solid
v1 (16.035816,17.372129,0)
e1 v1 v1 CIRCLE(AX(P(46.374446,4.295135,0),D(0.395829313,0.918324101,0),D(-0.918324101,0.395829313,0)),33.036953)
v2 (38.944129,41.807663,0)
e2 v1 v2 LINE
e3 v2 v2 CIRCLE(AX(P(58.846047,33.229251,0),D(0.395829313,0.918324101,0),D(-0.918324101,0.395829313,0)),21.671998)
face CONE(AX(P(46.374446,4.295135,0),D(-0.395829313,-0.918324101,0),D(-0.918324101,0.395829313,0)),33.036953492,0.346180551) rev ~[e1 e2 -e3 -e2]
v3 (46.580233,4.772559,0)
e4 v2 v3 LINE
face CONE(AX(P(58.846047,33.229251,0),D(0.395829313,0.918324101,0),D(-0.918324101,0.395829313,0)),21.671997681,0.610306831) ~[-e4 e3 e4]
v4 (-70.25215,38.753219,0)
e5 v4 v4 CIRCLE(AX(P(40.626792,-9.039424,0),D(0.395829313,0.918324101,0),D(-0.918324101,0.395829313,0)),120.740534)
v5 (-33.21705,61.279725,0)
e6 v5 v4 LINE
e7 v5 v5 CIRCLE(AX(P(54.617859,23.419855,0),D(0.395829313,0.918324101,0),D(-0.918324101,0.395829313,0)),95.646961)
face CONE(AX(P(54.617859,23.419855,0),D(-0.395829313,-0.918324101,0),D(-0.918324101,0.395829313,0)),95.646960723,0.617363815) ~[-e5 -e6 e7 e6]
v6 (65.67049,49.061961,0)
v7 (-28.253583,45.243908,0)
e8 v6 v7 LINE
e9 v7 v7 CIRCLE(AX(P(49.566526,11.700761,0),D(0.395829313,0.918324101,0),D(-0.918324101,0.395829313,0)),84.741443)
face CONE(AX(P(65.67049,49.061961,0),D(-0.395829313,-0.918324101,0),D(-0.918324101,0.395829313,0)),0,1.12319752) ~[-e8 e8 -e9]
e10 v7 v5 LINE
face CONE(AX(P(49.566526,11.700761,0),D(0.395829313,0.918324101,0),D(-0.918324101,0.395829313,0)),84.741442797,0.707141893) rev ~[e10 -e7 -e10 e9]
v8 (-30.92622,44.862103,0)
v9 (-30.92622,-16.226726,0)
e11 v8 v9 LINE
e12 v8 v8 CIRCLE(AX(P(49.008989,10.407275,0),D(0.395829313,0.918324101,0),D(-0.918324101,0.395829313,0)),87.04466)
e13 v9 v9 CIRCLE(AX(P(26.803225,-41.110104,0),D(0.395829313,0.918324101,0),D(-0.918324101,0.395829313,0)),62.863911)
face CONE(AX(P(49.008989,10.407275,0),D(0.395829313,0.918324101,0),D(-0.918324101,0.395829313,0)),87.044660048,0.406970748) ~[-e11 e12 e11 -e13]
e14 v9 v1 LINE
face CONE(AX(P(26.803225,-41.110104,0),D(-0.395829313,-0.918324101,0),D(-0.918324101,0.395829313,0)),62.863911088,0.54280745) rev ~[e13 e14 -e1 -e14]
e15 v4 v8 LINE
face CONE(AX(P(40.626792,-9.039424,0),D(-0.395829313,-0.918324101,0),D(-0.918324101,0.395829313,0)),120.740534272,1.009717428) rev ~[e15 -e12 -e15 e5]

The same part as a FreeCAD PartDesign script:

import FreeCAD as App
import Part
import Sketcher

V = App.Vector
Q = App.Units.Quantity

doc = App.newDocument("Part")
body = doc.addObject("PartDesign::Body", "Body")

# Sketch on XY plane
sketch1 = body.newObject("Sketcher::SketchObject", "Sketch")
sketch1.AttachmentSupport = (doc.getObject("XY_Plane"), [""])
sketch1.MapMode = "FlatFace"
sketch1.addGeometry(Part.LineSegment(V(-70.25215, 38.753219, 0), V(-30.92622, 44.862103, 0)), False)
sketch1.addGeometry(Part.LineSegment(V(-30.92622, 44.862103, 0), V(-30.92622, -16.226726, 0)), False)
sketch1.addGeometry(Part.LineSegment(V(-30.92622, -16.226726, 0), V(16.035816, 17.372129, 0)), False)
sketch1.addGeometry(Part.LineSegment(V(16.035816, 17.372129, 0), V(38.944129, 41.807663, 0)), False)
sketch1.addGeometry(Part.LineSegment(V(38.944129, 41.807663, 0), V(46.580233, 4.772559, 0)), False)
sketch1.addGeometry(Part.LineSegment(V(46.580233, 4.772559, 0), V(65.67049, 49.061961, 0)), False)
sketch1.addGeometry(Part.LineSegment(V(65.67049, 49.061961, 0), V(-28.253583, 45.243908, 0)), False)
sketch1.addGeometry(Part.LineSegment(V(-28.253583, 45.243908, 0), V(-33.21705, 61.279725, 0)), False)
sketch1.addGeometry(Part.LineSegment(V(-33.21705, 61.279725, 0), V(-70.25215, 38.753219, 0)), False)
sketch1.addGeometry(Part.LineSegment(V(26.803225, -41.110104, 0), V(65.67049, 49.061961, 0)), True)  # axis
sketch1.addConstraint(Sketcher.Constraint("Coincident", 0, 2, 1, 1))
sketch1.addConstraint(Sketcher.Constraint("Coincident", 1, 2, 2, 1))
sketch1.addConstraint(Sketcher.Constraint("Coincident", 2, 2, 3, 1))
sketch1.addConstraint(Sketcher.Constraint("Coincident", 3, 2, 4, 1))
sketch1.addConstraint(Sketcher.Constraint("Coincident", 4, 2, 5, 1))
sketch1.addConstraint(Sketcher.Constraint("Coincident", 5, 2, 6, 1))
sketch1.addConstraint(Sketcher.Constraint("Coincident", 6, 2, 7, 1))
sketch1.addConstraint(Sketcher.Constraint("Coincident", 7, 2, 8, 1))
sketch1.addConstraint(Sketcher.Constraint("Coincident", 8, 2, 0, 1))
sketch1.addConstraint(Sketcher.Constraint("Vertical", 1))
sketch1.addConstraint(Sketcher.Constraint("Coincident", 9, 2, 5, 2))
sketch1.addConstraint(Sketcher.Constraint("Parallel", 5, 9))
sketch1.addConstraint(Sketcher.Constraint("DistanceY", 1, 2, 1, 1, Q("61.088828 mm")))
sketch1.addConstraint(Sketcher.Constraint("DistanceY", 3, 2, 5, 2, Q("7.254299 mm")))
sketch1.addConstraint(Sketcher.Constraint("DistanceX", 6, 2, 2, 2, Q("44.289399 mm")))
sketch1.addConstraint(Sketcher.Constraint("DistanceX", 8, 2, 7, 2, Q("37.0351 mm")))
sketch1.addConstraint(Sketcher.Constraint("Distance", 0, Q("39.797578 mm")))
sketch1.addConstraint(Sketcher.Constraint("Distance", 3, Q("33.494568 mm")))
sketch1.addConstraint(Sketcher.Constraint("Distance", 5, Q("48.228509 mm")))
sketch1.addConstraint(Sketcher.Constraint("Distance", 8, Q("43.34792 mm")))
sketch1.addConstraint(Sketcher.Constraint("DistanceX", 0, 2, -1, 1, Q("30.92622 mm")))
sketch1.addConstraint(Sketcher.Constraint("DistanceY", -1, 1, 2, 2, Q("17.372129 mm")))
sketch1.addConstraint(Sketcher.Constraint("DistanceX", -1, 1, 3, 2, Q("38.944129 mm")))
sketch1.addConstraint(Sketcher.Constraint("DistanceY", -1, 1, 4, 2, Q("4.772559 mm")))
sketch1.addConstraint(Sketcher.Constraint("DistanceX", -1, 1, 5, 2, Q("65.67049 mm")))
sketch1.addConstraint(Sketcher.Constraint("DistanceY", -1, 1, 5, 2, Q("49.061961 mm")))
sketch1.addConstraint(Sketcher.Constraint("DistanceX", 7, 2, -1, 1, Q("33.21705 mm")))
sketch1.addConstraint(Sketcher.Constraint("DistanceY", -1, 1, 8, 2, Q("38.753219 mm")))
sketch1.addConstraint(Sketcher.Constraint("DistanceY", 2, 2, 6, 2, Q("27.871778 mm")))
sketch1.addConstraint(Sketcher.Constraint("DistanceX", 9, 1, 4, 2, Q("19.777008 mm")))
revolution = body.newObject("PartDesign::Revolution", "Revolution")
revolution.Profile = sketch1
revolution.ReferenceAxis = (sketch1, ["Axis0"])
revolution.Angle = 360

doc.recompute()
